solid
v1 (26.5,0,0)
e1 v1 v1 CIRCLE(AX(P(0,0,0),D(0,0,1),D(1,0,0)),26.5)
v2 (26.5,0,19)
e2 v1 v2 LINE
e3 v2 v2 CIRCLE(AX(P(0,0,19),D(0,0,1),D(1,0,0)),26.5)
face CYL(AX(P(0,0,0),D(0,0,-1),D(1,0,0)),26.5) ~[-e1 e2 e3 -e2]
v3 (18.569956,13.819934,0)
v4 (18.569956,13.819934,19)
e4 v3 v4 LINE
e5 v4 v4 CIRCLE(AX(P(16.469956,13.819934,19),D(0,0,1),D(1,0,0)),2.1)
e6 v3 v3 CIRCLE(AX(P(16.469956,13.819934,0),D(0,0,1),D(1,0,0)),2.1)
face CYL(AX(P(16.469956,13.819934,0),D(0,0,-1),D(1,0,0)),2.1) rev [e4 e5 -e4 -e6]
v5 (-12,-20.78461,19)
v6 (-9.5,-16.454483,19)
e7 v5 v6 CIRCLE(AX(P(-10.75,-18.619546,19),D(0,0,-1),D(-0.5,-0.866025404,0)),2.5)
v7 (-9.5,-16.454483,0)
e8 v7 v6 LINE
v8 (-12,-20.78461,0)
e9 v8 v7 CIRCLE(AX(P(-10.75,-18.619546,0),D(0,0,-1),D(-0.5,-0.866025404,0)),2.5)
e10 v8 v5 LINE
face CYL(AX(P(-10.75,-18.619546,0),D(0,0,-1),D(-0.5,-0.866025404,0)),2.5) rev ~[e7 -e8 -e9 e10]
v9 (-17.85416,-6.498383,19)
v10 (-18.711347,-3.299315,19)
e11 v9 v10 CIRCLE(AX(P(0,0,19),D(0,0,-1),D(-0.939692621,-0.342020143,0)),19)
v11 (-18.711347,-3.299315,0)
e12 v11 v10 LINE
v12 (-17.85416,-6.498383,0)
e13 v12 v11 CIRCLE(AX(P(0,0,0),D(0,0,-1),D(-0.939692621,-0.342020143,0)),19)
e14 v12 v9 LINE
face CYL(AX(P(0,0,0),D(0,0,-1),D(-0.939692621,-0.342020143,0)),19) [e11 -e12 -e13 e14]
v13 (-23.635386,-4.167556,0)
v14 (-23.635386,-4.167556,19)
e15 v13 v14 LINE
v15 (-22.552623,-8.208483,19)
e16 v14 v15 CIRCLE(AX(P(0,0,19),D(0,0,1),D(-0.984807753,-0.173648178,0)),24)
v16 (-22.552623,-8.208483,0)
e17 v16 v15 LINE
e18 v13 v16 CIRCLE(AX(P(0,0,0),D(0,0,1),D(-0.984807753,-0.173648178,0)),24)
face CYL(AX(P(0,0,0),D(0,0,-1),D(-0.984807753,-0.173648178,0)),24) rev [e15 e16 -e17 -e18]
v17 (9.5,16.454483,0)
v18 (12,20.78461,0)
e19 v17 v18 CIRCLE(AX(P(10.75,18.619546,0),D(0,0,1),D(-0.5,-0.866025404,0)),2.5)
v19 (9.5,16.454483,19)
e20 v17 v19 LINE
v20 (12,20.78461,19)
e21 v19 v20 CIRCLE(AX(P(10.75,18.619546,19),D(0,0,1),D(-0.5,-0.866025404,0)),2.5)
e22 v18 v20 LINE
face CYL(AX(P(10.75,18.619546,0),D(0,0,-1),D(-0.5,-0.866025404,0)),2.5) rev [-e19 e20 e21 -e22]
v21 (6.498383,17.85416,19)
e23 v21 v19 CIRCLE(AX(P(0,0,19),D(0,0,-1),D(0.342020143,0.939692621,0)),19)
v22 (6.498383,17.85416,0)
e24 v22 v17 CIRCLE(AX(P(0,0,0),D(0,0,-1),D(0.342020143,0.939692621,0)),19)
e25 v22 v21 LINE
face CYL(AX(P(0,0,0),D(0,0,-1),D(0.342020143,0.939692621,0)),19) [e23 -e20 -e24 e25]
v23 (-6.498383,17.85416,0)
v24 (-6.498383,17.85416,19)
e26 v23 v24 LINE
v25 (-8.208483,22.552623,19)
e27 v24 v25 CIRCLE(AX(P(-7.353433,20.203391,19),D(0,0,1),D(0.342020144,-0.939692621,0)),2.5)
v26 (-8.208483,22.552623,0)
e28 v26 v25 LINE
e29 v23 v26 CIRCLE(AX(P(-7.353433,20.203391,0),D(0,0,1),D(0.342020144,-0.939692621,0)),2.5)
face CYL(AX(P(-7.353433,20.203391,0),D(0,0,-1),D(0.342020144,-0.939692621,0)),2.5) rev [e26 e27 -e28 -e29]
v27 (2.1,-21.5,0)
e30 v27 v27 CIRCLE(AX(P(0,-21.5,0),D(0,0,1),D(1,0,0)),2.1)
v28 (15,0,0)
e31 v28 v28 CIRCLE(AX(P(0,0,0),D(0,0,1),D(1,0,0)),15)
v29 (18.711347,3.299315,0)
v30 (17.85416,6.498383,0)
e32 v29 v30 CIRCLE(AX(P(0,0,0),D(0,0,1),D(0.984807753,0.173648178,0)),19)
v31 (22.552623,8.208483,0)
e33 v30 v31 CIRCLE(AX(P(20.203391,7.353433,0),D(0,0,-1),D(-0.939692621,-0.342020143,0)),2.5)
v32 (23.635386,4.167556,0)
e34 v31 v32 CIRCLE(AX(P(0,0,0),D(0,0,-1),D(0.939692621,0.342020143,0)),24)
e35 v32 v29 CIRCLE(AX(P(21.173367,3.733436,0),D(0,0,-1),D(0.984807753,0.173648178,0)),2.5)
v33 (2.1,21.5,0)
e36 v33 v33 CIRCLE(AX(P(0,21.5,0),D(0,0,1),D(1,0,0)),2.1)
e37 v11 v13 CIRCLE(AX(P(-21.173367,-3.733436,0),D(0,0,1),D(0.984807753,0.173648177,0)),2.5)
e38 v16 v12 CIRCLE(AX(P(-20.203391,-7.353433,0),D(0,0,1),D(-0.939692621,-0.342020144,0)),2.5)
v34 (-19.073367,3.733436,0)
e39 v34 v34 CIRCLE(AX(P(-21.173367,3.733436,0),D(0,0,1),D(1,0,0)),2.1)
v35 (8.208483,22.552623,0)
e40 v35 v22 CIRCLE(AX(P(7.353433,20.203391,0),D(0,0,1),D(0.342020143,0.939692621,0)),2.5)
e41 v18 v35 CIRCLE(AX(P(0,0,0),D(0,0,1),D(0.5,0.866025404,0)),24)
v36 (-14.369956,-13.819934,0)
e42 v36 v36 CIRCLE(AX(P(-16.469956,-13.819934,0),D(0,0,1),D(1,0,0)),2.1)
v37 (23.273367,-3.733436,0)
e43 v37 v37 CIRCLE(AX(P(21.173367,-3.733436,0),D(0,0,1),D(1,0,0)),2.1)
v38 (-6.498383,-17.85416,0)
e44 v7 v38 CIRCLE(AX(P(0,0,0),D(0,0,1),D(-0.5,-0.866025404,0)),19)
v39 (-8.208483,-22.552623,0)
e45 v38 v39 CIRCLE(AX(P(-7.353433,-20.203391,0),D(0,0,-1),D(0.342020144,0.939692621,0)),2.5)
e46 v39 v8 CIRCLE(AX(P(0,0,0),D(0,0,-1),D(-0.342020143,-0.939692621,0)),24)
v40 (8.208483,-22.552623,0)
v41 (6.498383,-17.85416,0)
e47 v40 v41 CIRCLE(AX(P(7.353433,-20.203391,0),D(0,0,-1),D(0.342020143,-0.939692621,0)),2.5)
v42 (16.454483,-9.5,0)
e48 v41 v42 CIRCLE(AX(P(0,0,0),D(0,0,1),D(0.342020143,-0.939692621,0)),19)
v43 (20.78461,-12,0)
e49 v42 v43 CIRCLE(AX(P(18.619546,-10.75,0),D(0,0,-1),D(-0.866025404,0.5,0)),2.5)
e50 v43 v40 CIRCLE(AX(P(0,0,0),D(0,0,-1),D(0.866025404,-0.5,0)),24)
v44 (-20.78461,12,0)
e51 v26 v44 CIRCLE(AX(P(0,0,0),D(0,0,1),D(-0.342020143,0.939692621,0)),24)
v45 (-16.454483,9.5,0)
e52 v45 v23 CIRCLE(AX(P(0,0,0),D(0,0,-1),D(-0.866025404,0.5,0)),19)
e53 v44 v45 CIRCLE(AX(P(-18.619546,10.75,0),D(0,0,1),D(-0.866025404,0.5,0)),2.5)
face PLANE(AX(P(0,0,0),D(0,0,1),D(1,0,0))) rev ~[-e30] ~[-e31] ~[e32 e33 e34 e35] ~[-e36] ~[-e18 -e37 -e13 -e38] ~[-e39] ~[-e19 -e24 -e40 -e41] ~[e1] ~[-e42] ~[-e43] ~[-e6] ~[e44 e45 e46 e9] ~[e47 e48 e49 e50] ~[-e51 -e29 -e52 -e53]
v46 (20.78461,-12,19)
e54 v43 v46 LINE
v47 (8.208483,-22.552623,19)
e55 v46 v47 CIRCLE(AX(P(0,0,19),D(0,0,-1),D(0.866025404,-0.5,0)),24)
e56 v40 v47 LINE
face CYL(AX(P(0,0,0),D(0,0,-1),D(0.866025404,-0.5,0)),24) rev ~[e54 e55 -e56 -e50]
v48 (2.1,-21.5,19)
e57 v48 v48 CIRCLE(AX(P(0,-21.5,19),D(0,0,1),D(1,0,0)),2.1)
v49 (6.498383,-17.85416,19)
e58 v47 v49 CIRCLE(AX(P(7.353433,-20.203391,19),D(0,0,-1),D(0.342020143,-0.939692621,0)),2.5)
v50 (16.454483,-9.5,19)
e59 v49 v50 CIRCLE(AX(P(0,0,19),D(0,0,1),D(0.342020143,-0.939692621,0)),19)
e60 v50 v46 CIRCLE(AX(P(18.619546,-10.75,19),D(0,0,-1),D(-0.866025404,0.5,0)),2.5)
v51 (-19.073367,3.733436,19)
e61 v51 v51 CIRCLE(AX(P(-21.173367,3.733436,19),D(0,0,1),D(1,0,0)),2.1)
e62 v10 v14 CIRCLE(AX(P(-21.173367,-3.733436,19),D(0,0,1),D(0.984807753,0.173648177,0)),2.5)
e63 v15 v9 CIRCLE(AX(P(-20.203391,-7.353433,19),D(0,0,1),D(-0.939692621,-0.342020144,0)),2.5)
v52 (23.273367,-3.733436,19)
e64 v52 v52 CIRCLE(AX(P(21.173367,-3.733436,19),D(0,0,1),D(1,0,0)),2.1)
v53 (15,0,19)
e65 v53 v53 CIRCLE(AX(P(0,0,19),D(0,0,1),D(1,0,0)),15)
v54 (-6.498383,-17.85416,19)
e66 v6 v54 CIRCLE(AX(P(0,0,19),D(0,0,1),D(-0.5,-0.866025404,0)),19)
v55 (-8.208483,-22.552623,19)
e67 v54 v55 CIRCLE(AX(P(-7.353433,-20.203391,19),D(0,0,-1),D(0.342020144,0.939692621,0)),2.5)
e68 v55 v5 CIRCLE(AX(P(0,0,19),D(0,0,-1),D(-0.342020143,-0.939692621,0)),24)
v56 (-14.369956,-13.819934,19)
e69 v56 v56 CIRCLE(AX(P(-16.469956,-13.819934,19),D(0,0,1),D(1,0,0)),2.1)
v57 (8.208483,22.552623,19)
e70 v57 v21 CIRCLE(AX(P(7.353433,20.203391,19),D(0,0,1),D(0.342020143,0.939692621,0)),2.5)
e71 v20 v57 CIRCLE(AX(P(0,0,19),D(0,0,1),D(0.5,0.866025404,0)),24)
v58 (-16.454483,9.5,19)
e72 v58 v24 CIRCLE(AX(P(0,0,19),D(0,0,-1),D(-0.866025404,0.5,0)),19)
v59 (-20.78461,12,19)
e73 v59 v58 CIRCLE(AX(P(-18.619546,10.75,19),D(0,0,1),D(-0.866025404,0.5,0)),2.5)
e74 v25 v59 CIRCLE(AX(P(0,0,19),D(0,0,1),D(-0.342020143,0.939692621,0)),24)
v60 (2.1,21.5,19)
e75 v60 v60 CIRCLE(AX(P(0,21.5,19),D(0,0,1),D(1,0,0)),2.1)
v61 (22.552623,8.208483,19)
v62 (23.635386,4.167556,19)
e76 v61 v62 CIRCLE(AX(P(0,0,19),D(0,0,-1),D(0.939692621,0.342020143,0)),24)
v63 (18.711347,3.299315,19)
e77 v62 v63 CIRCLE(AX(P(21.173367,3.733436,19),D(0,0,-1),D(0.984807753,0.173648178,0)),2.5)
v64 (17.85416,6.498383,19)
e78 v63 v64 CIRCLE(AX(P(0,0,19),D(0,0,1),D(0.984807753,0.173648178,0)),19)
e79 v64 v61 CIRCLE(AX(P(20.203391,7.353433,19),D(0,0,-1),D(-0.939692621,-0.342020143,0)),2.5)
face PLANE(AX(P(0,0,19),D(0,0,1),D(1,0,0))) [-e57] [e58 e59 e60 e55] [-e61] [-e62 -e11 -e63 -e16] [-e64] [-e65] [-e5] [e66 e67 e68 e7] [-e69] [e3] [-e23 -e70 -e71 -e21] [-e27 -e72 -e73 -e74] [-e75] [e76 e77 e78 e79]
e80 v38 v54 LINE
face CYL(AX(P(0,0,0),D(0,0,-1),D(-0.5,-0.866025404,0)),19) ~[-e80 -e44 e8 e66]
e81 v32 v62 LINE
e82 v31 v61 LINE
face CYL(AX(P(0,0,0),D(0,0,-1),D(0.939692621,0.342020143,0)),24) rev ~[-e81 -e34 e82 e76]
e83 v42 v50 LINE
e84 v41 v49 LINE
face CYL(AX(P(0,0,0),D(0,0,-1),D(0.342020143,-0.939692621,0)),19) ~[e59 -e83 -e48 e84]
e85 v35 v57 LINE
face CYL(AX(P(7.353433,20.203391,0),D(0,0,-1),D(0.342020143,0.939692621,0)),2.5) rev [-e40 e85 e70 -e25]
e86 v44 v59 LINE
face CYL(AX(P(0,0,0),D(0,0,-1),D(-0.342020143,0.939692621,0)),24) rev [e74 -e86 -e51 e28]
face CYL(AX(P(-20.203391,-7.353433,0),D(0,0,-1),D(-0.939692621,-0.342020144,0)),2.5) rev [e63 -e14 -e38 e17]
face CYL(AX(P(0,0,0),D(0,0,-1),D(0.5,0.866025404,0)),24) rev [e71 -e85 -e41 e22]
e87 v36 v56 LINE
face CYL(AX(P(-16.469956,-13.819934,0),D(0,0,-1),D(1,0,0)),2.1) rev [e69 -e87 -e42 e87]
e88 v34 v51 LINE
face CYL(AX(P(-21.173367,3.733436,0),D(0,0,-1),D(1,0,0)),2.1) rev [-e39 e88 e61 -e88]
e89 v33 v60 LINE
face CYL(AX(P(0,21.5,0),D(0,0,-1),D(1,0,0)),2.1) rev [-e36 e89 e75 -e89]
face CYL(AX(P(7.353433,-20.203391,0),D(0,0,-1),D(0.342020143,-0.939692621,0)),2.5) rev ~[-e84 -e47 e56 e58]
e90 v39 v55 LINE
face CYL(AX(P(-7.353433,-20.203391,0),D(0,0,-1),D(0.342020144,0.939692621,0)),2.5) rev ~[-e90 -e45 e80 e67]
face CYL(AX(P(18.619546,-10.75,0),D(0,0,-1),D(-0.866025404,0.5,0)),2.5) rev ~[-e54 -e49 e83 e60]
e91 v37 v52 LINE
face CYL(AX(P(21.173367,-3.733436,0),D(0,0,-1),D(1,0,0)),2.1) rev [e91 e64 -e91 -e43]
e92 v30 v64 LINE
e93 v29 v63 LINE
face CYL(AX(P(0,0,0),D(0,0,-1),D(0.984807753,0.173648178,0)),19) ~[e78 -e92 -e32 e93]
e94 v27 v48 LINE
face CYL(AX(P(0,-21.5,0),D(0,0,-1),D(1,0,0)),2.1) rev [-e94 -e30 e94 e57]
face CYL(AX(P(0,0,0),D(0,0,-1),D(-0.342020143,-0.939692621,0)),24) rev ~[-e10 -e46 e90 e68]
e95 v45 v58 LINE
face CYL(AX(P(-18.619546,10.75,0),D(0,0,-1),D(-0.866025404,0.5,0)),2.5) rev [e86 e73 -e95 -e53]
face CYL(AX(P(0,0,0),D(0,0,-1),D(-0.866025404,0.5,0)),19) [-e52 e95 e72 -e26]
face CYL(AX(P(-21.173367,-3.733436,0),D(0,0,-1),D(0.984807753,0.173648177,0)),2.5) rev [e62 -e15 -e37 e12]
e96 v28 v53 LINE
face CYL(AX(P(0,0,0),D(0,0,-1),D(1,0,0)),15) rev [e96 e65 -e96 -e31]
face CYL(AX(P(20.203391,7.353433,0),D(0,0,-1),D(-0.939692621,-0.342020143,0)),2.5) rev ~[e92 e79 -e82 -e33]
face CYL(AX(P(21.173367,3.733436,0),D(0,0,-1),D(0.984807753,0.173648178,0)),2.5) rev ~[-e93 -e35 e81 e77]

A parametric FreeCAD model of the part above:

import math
import FreeCAD as App
import Part
import Sketcher
Q = App.Units.Quantity

doc = App.newDocument("Part")
body = doc.addObject("PartDesign::Body", "Body")

# Sketch on XY plane
sketch1 = doc.addObject("Sketcher::SketchObject", "Sketch")
body.addObject(sketch1)
sketch1.AttachmentSupport = (doc.XY_Plane, [""])
sketch1.MapMode = "FlatFace"
sketch1.addGeometry([
    Part.Circle(App.Vector(0, 0, 0), App.Vector(0, 0, 1), 26.5),  # 0
    Part.Circle(App.Vector(-16.5, -13.8, 0), App.Vector(0, 0, 1), 2.1),  # 1
    Part.ArcOfCircle(Part.Circle(App.Vector(-10.8, -18.6, 0), App.Vector(0, 0, 1), 2.5), math.radians(60), math.radians(240)),  # 2
    Part.ArcOfCircle(Part.Circle(App.Vector(0, 0, 0), App.Vector(0, 0, 1), 19), math.radians(-120), math.radians(-110)),  # 3
    Part.ArcOfCircle(Part.Circle(App.Vector(-7.4, -20.2, 0), App.Vector(0, 0, 1), 2.5), math.radians(-110), math.radians(70)),  # 4
    Part.ArcOfCircle(Part.Circle(App.Vector(0, 0, 0), App.Vector(0, 0, 1), 24), math.radians(-120), math.radians(-110)),  # 5
    Part.ArcOfCircle(Part.Circle(App.Vector(0, 0, 0), App.Vector(0, 0, 1), 24), math.radians(-170), math.radians(-160)),  # 6
    Part.ArcOfCircle(Part.Circle(App.Vector(-21.2, -3.7, 0), App.Vector(0, 0, 1), 2.5), math.radians(10), math.radians(190)),  # 7
    Part.ArcOfCircle(Part.Circle(App.Vector(0, 0, 0), App.Vector(0, 0, 1), 19), math.radians(-170), math.radians(-160)),  # 8
    Part.ArcOfCircle(Part.Circle(App.Vector(-20.2, -7.4, 0), App.Vector(0, 0, 1), 2.5), math.radians(-160), math.radians(20)),  # 9
    Part.Circle(App.Vector(0, -21.5, 0), App.Vector(0, 0, 1), 2.1),  # 10
    Part.ArcOfCircle(Part.Circle(App.Vector(7.4, -20.2, 0), App.Vector(0, 0, 1), 2.5), math.radians(110), math.radians(290)),  # 11
    Part.ArcOfCircle(Part.Circle(App.Vector(0, 0, 0), App.Vector(0, 0, 1), 19), math.radians(-70), math.radians(-30)),  # 12
    Part.ArcOfCircle(Part.Circle(App.Vector(18.6, -10.8, 0), App.Vector(0, 0, 1), 2.5), math.radians(-30), math.radians(150)),  # 13
    Part.ArcOfCircle(Part.Circle(App.Vector(0, 0, 0), App.Vector(0, 0, 1), 24), math.radians(-70), math.radians(-30)),  # 14
    Part.Circle(App.Vector(21.2, -3.7, 0), App.Vector(0, 0, 1), 2.1),  # 15
    Part.Circle(App.Vector(-21.2, 3.7, 0), App.Vector(0, 0, 1), 2.1),  # 16
    Part.ArcOfCircle(Part.Circle(App.Vector(0, 0, 0), App.Vector(0, 0, 1), 24), math.radians(110), math.radians(150)),  # 17
    Part.ArcOfCircle(Part.Circle(App.Vector(-7.4, 20.2, 0), App.Vector(0, 0, 1), 2.5), math.radians(-70), math.radians(110)),  # 18
    Part.ArcOfCircle(Part.Circle(App.Vector(0, 0, 0), App.Vector(0, 0, 1), 19), math.radians(110), math.radians(150)),  # 19
    Part.ArcOfCircle(Part.Circle(App.Vector(-18.6, 10.8, 0), App.Vector(0, 0, 1), 2.5), math.radians(150), math.radians(330)),  # 20
    Part.Circle(App.Vector(0, 0, 0), App.Vector(0, 0, 1), 15),  # 21
    Part.ArcOfCircle(Part.Circle(App.Vector(21.2, 3.7, 0), App.Vector(0, 0, 1), 2.5), math.radians(-170), math.radians(10)),  # 22
    Part.ArcOfCircle(Part.Circle(App.Vector(0, 0, 0), App.Vector(0, 0, 1), 19), math.radians(10), math.radians(20)),  # 23
    Part.ArcOfCircle(Part.Circle(App.Vector(20.2, 7.4, 0), App.Vector(0, 0, 1), 2.5), math.radians(20), math.radians(200)),  # 24
    Part.ArcOfCircle(Part.Circle(App.Vector(0, 0, 0), App.Vector(0, 0, 1), 24), math.radians(10), math.radians(20)),  # 25
    Part.Circle(App.Vector(0, 21.5, 0), App.Vector(0, 0, 1), 2.1),  # 26
    Part.ArcOfCircle(Part.Circle(App.Vector(0, 0, 0), App.Vector(0, 0, 1), 24), math.radians(60), math.radians(70)),  # 27
    Part.ArcOfCircle(Part.Circle(App.Vector(10.8, 18.6, 0), App.Vector(0, 0, 1), 2.5), math.radians(-120), math.radians(60)),  # 28
    Part.ArcOfCircle(Part.Circle(App.Vector(0, 0, 0), App.Vector(0, 0, 1), 19), math.radians(60), math.radians(70)),  # 29
    Part.ArcOfCircle(Part.Circle(App.Vector(7.4, 20.2, 0), App.Vector(0, 0, 1), 2.5), math.radians(70), math.radians(250)),  # 30
    Part.Circle(App.Vector(16.5, 13.8, 0), App.Vector(0, 0, 1), 2.1),  # 31
], False)
sketch1.addConstraint([
    Sketcher.Constraint("Tangent", 2, 1, 3, 1),
    Sketcher.Constraint("Tangent", 3, 2, 4, 2),
    Sketcher.Constraint("Tangent", 4, 1, 5, 2),
    Sketcher.Constraint("Tangent", 5, 1, 2, 2),
    Sketcher.Constraint("Tangent", 6, 1, 7, 2),
    Sketcher.Constraint("Tangent", 7, 1, 8, 1),
    Sketcher.Constraint("Tangent", 8, 2, 9, 2),
    Sketcher.Constraint("Tangent", 9, 1, 6, 2),
    Sketcher.Constraint("Tangent", 11, 1, 12, 1),
    Sketcher.Constraint("Tangent", 12, 2, 13, 2),
    Sketcher.Constraint("Tangent", 13, 1, 14, 2),
    Sketcher.Constraint("Tangent", 14, 1, 11, 2),
    Sketcher.Constraint("Tangent", 17, 1, 18, 2),
    Sketcher.Constraint("Tangent", 18, 1, 19, 1),
    Sketcher.Constraint("Tangent", 19, 2, 20, 2),
    Sketcher.Constraint("Tangent", 20, 1, 17, 2),
    Sketcher.Constraint("Tangent", 22, 1, 23, 1),
    Sketcher.Constraint("Tangent", 23, 2, 24, 2),
    Sketcher.Constraint("Tangent", 24, 1, 25, 2),
    Sketcher.Constraint("Tangent", 25, 1, 22, 2),
    Sketcher.Constraint("Tangent", 27, 1, 28, 2),
    Sketcher.Constraint("Tangent", 28, 1, 29, 1),
    Sketcher.Constraint("Tangent", 29, 2, 30, 2),
    Sketcher.Constraint("Tangent", 30, 1, 27, 2),
    Sketcher.Constraint("Coincident", 0, 3, -1, 1),
    Sketcher.Constraint("Coincident", 3, 3, -1, 1),
    Sketcher.Constraint("Coincident", 5, 3, -1, 1),
    Sketcher.Constraint("Coincident", 6, 3, -1, 1),
    Sketcher.Constraint("Coincident", 8, 3, -1, 1),
    Sketcher.Constraint("Coincident", 12, 3, -1, 1),
    Sketcher.Constraint("Coincident", 14, 3, -1, 1),
    Sketcher.Constraint("Coincident", 17, 3, -1, 1),
    Sketcher.Constraint("Coincident", 19, 3, -1, 1),
    Sketcher.Constraint("Coincident", 21, 3, -1, 1),
    Sketcher.Constraint("Coincident", 23, 3, -1, 1),
    Sketcher.Constraint("Coincident", 25, 3, -1, 1),
    Sketcher.Constraint("Coincident", 27, 3, -1, 1),
    Sketcher.Constraint("Coincident", 29, 3, -1, 1),
    Sketcher.Constraint("Equal", 5, 6),
    Sketcher.Constraint("Equal", 4, 7),
    Sketcher.Constraint("Equal", 1, 10),
    Sketcher.Constraint("Equal", 9, 11),
    Sketcher.Constraint("Equal", 8, 12),
    Sketcher.Constraint("Equal", 10, 15),
    Sketcher.Constraint("Equal", 15, 16),
    Sketcher.Constraint("Equal", 14, 17),
    Sketcher.Constraint("Equal", 13, 18),
    Sketcher.Constraint("Equal", 20, 22),
    Sketcher.Constraint("Equal", 19, 23),
    Sketcher.Constraint("Equal", 16, 26),
    Sketcher.Constraint("Equal", 25, 27),
    Sketcher.Constraint("Equal", 24, 28),
    Sketcher.Constraint("Equal", 26, 31),
    Sketcher.Constraint("Symmetric", 15, 3, 16, 3, -1, 1),
    Sketcher.Constraint("Symmetric", 10, 3, 26, 3, -1, 1),
    Sketcher.Constraint("Symmetric", 1, 3, 31, 3, -1, 1),
    Sketcher.Constraint("Symmetric", 7, 3, 15, 3, -2),
    Sketcher.Constraint("PointOnObject", 10, 3, -2),
    Sketcher.Constraint("Horizontal", 4, 3, 11, 3),
    Sketcher.Constraint("Horizontal", 16, 3, 22, 3),
    Sketcher.Constraint("Horizontal", 18, 3, 30, 3),
    Sketcher.Constraint("Vertical", 4, 3, 18, 3),
    Sketcher.Constraint("Diameter", 0, Q("53 mm")),
    Sketcher.Constraint("Diameter", 21, Q("30 mm")),
    Sketcher.Constraint("Radius", 3, Q("19 mm")),
    Sketcher.Constraint("Radius", 5, Q("24 mm")),
    Sketcher.Constraint("Diameter", 1, Q("4.2 mm")),
    Sketcher.Constraint("DistanceX", 5, 1, -1, 1, Q("12 mm")),
    Sketcher.Constraint("DistanceY", 13, 1, -1, 1, Q("12 mm")),
    Sketcher.Constraint("DistanceY", -1, 1, 20, 1, Q("12 mm")),
    Sketcher.Constraint("DistanceX", -1, 1, 27, 1, Q("12 mm")),
    Sketcher.Constraint("DistanceY", 10, 3, -1, 1, Q("21.5 mm")),
    Sketcher.Constraint("DistanceX", 14, 1, 12, 2, Q("8.245999 mm")),
    Sketcher.Constraint("DistanceY", 1, 3, 9, 3, Q("6.466501 mm")),
    Sketcher.Constraint("DistanceY", 24, 3, 31, 3, Q("6.466501 mm")),
    Sketcher.Constraint("DistanceY", 9, 1, 8, 2, Q("1.710101 mm")),
    Sketcher.Constraint("DistanceX", 7, 3, 1, 3, Q("4.703411 mm")),
    Sketcher.Constraint("DistanceY", 2, 3, 7, 3, Q("14.88611 mm")),
])
pad1 = doc.addObject("PartDesign::Pad", "Pad")
body.addObject(pad1)
pad1.Profile = sketch1
pad1.Length = 19

doc.recompute()
